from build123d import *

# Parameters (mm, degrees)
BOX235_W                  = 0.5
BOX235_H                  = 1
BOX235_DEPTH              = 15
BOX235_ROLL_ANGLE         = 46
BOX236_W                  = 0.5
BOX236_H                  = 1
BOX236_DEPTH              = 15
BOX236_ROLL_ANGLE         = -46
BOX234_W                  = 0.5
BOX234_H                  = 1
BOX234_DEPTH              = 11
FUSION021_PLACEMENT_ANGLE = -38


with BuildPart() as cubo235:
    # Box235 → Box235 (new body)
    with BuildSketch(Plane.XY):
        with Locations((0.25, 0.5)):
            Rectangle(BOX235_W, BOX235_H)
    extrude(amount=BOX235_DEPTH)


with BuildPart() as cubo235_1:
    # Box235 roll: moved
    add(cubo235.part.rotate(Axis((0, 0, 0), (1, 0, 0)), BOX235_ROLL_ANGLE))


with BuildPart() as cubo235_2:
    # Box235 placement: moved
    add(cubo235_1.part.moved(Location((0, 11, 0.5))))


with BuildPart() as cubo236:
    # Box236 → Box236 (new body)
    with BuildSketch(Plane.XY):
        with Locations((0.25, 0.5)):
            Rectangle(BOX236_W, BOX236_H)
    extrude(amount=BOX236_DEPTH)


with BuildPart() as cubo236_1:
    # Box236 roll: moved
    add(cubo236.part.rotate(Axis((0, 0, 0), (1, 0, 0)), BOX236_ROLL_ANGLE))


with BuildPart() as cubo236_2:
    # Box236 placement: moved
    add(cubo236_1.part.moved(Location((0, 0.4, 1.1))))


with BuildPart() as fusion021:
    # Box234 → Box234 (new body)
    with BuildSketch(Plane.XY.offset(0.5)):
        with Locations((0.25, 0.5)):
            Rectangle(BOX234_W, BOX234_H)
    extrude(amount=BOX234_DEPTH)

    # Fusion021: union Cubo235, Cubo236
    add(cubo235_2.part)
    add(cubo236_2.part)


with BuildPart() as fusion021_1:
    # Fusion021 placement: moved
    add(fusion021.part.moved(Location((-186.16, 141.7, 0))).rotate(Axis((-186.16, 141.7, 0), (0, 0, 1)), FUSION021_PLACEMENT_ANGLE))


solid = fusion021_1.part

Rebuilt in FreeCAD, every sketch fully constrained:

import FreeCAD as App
import Part
import Sketcher
from FreeCAD import Vector
Q = App.Units.Quantity

doc = App.newDocument("Part")
body = doc.addObject("PartDesign::Body", "Body")

# Sketch on XY plane
sketch1 = body.newObject("Sketcher::SketchObject", "Sketch")
sketch1.AttachmentSupport = (doc.getObject("XY_Plane"), [""])
sketch1.MapMode = "FlatFace"
sketch1.addGeometry(Part.LineSegment(Vector(0, 1, 0), Vector(0, 0, 0)), False)
sketch1.addGeometry(Part.LineSegment(Vector(0, 0, 0), Vector(0.5, 0, 0)), False)
sketch1.addGeometry(Part.LineSegment(Vector(0.5, 0, 0), Vector(0.5, 1, 0)), False)
sketch1.addGeometry(Part.LineSegment(Vector(0.5, 1, 0), Vector(0, 1, 0)), False)
sketch1.addConstraint(Sketcher.Constraint("Coincident", 0, 2, 1, 1))
sketch1.addConstraint(Sketcher.Constraint("Coincident", 1, 2, 2, 1))
sketch1.addConstraint(Sketcher.Constraint("Coincident", 2, 2, 3, 1))
sketch1.addConstraint(Sketcher.Constraint("Coincident", 3, 2, 0, 1))
sketch1.addConstraint(Sketcher.Constraint("Vertical", 0))
sketch1.addConstraint(Sketcher.Constraint("Horizontal", 1))
sketch1.addConstraint(Sketcher.Constraint("Vertical", 2))
sketch1.addConstraint(Sketcher.Constraint("Horizontal", 3))
sketch1.addConstraint(Sketcher.Constraint("Coincident", 0, 2, -1, 1))
sketch1.addConstraint(Sketcher.Constraint("DistanceY", 0, 2, 0, 1, Q("1 mm")))
sketch1.addConstraint(Sketcher.Constraint("DistanceX", 1, 1, 1, 2, Q("0.5 mm")))
pad1 = body.newObject("PartDesign::Pad", "Pad")
pad1.Profile = sketch1
pad1.Length = 15
body2 = doc.addObject("PartDesign::Body", "Body001")
doc.recompute()

body.Placement = App.Placement(Vector(0, 0, 0), App.Rotation(Vector(1, 0, 0), 46))
boolean = body2.newObject("PartDesign::Boolean", "Boolean")
boolean.Type = "Fuse"
boolean.addObjects([body])
body3 = doc.addObject("PartDesign::Body", "Body002")
doc.recompute()

body2.Placement = App.Placement(Vector(0, 11, 0.5), App.Rotation(Vector(0, 0, 1), 0))
boolean2 = body3.newObject("PartDesign::Boolean", "Boolean001")
boolean2.Type = "Fuse"
boolean2.addObjects([body2])
body4 = doc.addObject("PartDesign::Body", "Body003")

# Sketch on XY plane
sketch2 = body4.newObject("Sketcher::SketchObject", "Sketch001")
sketch2.AttachmentSupport = (doc.getObject("XY_Plane003"), [""])
sketch2.MapMode = "FlatFace"
sketch2.addGeometry(Part.LineSegment(Vector(0, 1, 0), Vector(0, 0, 0)), False)
sketch2.addGeometry(Part.LineSegment(Vector(0, 0, 0), Vector(0.5, 0, 0)), False)
sketch2.addGeometry(Part.LineSegment(Vector(0.5, 0, 0), Vector(0.5, 1, 0)), False)
sketch2.addGeometry(Part.LineSegment(Vector(0.5, 1, 0), Vector(0, 1, 0)), False)
sketch2.addConstraint(Sketcher.Constraint("Coincident", 0, 2, 1, 1))
sketch2.addConstraint(Sketcher.Constraint("Coincident", 1, 2, 2, 1))
sketch2.addConstraint(Sketcher.Constraint("Coincident", 2, 2, 3, 1))
sketch2.addConstraint(Sketcher.Constraint("Coincident", 3, 2, 0, 1))
sketch2.addConstraint(Sketcher.Constraint("Vertical", 0))
sketch2.addConstraint(Sketcher.Constraint("Horizontal", 1))
sketch2.addConstraint(Sketcher.Constraint("Vertical", 2))
sketch2.addConstraint(Sketcher.Constraint("Horizontal", 3))
sketch2.addConstraint(Sketcher.Constraint("Coincident", 0, 2, -1, 1))
sketch2.addConstraint(Sketcher.Constraint("DistanceY", 0, 2, 0, 1, Q("1 mm")))
sketch2.addConstraint(Sketcher.Constraint("DistanceX", 1, 1, 1, 2, Q("0.5 mm")))
pad2 = body4.newObject("PartDesign::Pad", "Pad001")
pad2.Profile = sketch2
pad2.Length = 15
body5 = doc.addObject("PartDesign::Body", "Body004")
doc.recompute()

body4.Placement = App.Placement(Vector(0, 0, 0), App.Rotation(Vector(1, 0, 0), 314))
boolean3 = body5.newObject("PartDesign::Boolean", "Boolean002")
boolean3.Type = "Fuse"
boolean3.addObjects([body4])
body6 = doc.addObject("PartDesign::Body", "Body005")
doc.recompute()

body5.Placement = App.Placement(Vector(0, 0.4, 1.1), App.Rotation(Vector(0, 0, 1), 0))
boolean4 = body6.newObject("PartDesign::Boolean", "Boolean003")
boolean4.Type = "Fuse"
boolean4.addObjects([body5])
body7 = doc.addObject("PartDesign::Body", "Body006")

# Sketch on XY plane
sketch3 = body7.newObject("Sketcher::SketchObject", "Sketch002")
sketch3.AttachmentSupport = (doc.getObject("XY_Plane006"), [""])
sketch3.MapMode = "FlatFace"
sketch3.AttachmentOffset = App.Placement(Vector(0, 0, 0.5), App.Rotation())
sketch3.addGeometry(Part.LineSegment(Vector(0, 1, 0), Vector(0, 0, 0)), False)
sketch3.addGeometry(Part.LineSegment(Vector(0, 0, 0), Vector(0.5, 0, 0)), False)
sketch3.addGeometry(Part.LineSegment(Vector(0.5, 0, 0), Vector(0.5, 1, 0)), False)
sketch3.addGeometry(Part.LineSegment(Vector(0.5, 1, 0), Vector(0, 1, 0)), False)
sketch3.addConstraint(Sketcher.Constraint("Coincident", 0, 2, 1, 1))
sketch3.addConstraint(Sketcher.Constraint("Coincident", 1, 2, 2, 1))
sketch3.addConstraint(Sketcher.Constraint("Coincident", 2, 2, 3, 1))
sketch3.addConstraint(Sketcher.Constraint("Coincident", 3, 2, 0, 1))
sketch3.addConstraint(Sketcher.Constraint("Vertical", 0))
sketch3.addConstraint(Sketcher.Constraint("Horizontal", 1))
sketch3.addConstraint(Sketcher.Constraint("Vertical", 2))
sketch3.addConstraint(Sketcher.Constraint("Horizontal", 3))
sketch3.addConstraint(Sketcher.Constraint("Coincident", 0, 2, -1, 1))
sketch3.addConstraint(Sketcher.Constraint("DistanceY", 0, 2, 0, 1, Q("1 mm")))
sketch3.addConstraint(Sketcher.Constraint("DistanceX", 1, 1, 1, 2, Q("0.5 mm")))
pad3 = body7.newObject("PartDesign::Pad", "Pad002")
pad3.Profile = sketch3
pad3.Length = 11
doc.recompute()

boolean5 = body7.newObject("PartDesign::Boolean", "Boolean004")
boolean5.Type = "Fuse"
boolean5.addObjects([body3])
doc.recompute()

boolean6 = body7.newObject("PartDesign::Boolean", "Boolean005")
boolean6.Type = "Fuse"
boolean6.addObjects([body6])
body8 = doc.addObject("PartDesign::Body", "Body007")
doc.recompute()

body7.Placement = App.Placement(Vector(-186.16, 141.7, 0), App.Rotation(Vector(0, 0, 1), 322))
boolean7 = body8.newObject("PartDesign::Boolean", "Boolean006")
boolean7.Type = "Fuse"
boolean7.addObjects([body7])

doc.recompute()
